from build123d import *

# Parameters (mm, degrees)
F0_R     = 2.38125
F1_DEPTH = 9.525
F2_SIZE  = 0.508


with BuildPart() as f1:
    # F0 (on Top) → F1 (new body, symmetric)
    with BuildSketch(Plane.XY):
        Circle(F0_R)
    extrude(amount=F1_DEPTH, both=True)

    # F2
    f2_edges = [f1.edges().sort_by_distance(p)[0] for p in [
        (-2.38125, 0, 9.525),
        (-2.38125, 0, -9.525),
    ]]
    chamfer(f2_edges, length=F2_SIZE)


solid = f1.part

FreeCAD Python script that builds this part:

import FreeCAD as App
import Part
import Sketcher
from FreeCAD import Vector
Q = App.Units.Quantity


def edges_at(feature, points):
    """Names of the edges that pass closest to the given points."""
    edges = feature.Shape.Edges
    near = lambda p: min(range(len(edges)), key=lambda i: edges[i].distToShape(Part.Vertex(*p))[0])
    return sorted({f"Edge{near(p) + 1}" for p in points})

doc = App.newDocument("Part")
body = doc.addObject("PartDesign::Body", "Body")

# Sketch on XY plane
sketch1 = doc.addObject("Sketcher::SketchObject", "Sketch")
body.addObject(sketch1)
sketch1.AttachmentSupport = (doc.XY_Plane, [""])
sketch1.MapMode = "FlatFace"
sketch1.addGeometry(Part.Circle(Vector(0, 0, 0), Vector(0, 0, 1), 2.4), False)
sketch1.addConstraint([
    Sketcher.Constraint("Coincident", 0, 3, -1, 1),
    Sketcher.Constraint("Diameter", 0, Q("0.1875 in")),
])
pad1 = doc.addObject("PartDesign::Pad", "Pad")
body.addObject(pad1)
pad1.Profile = sketch1
pad1.Length = Q("0.75 in")
pad1.Midplane = True
doc.recompute()

chamfer = doc.addObject("PartDesign::Chamfer", "Chamfer")
body.addObject(chamfer)
chamfer.Base = (pad1, edges_at(pad1, [(-2.381, 0, 9.525), (-2.381, 0, -9.525)]))
chamfer.Size = Q("0.02 in")

doc.recompute()
